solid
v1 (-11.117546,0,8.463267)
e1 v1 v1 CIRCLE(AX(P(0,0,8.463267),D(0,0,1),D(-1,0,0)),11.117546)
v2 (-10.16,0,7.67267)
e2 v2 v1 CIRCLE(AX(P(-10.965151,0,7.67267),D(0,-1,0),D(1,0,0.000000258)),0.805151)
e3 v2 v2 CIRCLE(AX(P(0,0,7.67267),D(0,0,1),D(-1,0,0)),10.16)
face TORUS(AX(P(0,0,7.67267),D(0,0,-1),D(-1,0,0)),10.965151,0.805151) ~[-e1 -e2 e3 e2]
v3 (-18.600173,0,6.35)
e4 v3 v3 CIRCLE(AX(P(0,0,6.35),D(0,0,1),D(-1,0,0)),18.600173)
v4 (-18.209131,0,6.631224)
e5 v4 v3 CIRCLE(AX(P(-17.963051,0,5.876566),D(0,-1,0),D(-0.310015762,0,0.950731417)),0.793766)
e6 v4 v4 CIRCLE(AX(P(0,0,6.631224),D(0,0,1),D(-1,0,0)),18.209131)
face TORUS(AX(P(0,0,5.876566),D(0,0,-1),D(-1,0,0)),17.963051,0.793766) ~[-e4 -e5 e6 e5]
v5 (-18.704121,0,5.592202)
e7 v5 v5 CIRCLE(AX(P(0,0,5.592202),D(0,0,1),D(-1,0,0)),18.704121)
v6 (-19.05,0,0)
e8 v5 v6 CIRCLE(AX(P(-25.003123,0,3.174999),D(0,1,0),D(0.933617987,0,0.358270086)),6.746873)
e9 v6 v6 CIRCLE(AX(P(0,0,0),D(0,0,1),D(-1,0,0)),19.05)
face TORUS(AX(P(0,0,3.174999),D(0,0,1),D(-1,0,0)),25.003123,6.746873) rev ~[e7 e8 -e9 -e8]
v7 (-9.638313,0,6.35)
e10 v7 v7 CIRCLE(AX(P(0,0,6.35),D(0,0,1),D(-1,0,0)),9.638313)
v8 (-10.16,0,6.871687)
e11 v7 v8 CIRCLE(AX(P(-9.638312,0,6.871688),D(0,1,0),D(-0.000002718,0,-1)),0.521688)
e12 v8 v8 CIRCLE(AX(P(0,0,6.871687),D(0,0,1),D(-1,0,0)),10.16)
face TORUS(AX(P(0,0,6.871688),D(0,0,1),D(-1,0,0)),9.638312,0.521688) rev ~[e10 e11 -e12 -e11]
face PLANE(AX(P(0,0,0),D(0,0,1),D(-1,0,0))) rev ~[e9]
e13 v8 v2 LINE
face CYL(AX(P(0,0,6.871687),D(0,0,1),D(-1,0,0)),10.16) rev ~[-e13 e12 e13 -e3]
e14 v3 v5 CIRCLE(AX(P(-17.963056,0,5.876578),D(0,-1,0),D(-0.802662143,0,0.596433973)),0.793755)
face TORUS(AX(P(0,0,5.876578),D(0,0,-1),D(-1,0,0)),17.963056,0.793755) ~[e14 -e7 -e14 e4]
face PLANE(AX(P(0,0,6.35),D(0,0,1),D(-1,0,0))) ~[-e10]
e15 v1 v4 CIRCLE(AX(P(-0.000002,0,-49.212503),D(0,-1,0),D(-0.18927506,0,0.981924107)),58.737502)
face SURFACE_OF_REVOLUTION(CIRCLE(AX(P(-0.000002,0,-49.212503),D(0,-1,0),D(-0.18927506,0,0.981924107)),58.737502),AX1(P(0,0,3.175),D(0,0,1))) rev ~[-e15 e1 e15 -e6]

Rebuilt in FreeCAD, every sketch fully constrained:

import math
import FreeCAD as App
import Part
import Sketcher

V = App.Vector
Q = App.Units.Quantity

doc = App.newDocument("Part")
body = doc.addObject("PartDesign::Body", "Body")

sketch1 = body.newObject("Sketcher::SketchObject", "Sketch")
sketch1.AttachmentSupport = (doc.getObject("XZ_Plane"), [""])
sketch1.MapMode = "FlatFace"
sketch1.addGeometry([
    Part.LineSegment(V(-19.05, 0, 0), V(0, 0, 0)),
    Part.LineSegment(V(0, 0, 0), V(0, 6.35, 0)),
    Part.LineSegment(V(0, 6.35, 0), V(-9.638313, 6.35, 0)),
    Part.ArcOfCircle(Part.Circle(V(-9.638312, 6.871688, 0), V(0, 0, 1), 0.521688), math.radians(-179.999844), math.radians(-90.000156)),
    Part.LineSegment(V(-10.16, 6.871687, 0), V(-10.16, 7.67267, 0)),
    Part.ArcOfCircle(Part.Circle(V(-10.965151, 7.67267, 0), V(0, 0, 1), 0.805151), math.radians(0.000015), math.radians(100.910478)),
    Part.ArcOfCircle(Part.Circle(V(-0.000002, -49.212503, 0), V(0, 0, 1), 58.737502), math.radians(100.910481), math.radians(108.059747)),
    Part.ArcOfCircle(Part.Circle(V(-17.963051, 5.876566, 0), V(0, 0, 1), 0.793766), math.radians(108.06018), math.radians(143.384607)),
    Part.ArcOfCircle(Part.Circle(V(-17.963056, 5.876578, 0), V(0, 0, 1), 0.793755), math.radians(143.385076), math.radians(200.993761)),
    Part.ArcOfCircle(Part.Circle(V(-25.003123, 3.174999, 0), V(0, 0, 1), 6.746873), math.radians(-28.072492), math.radians(20.993994)),
], False)
sketch1.addConstraint([
    Sketcher.Constraint("Coincident", 0, 2, 1, 1),
    Sketcher.Constraint("Coincident", 1, 2, 2, 1),
    Sketcher.Constraint("Coincident", 2, 2, 3, 2),
    Sketcher.Constraint("Coincident", 3, 1, 4, 1),
    Sketcher.Constraint("Tangent", 4, 2, 5, 1),
    Sketcher.Constraint("Tangent", 5, 2, 6, 1),
    Sketcher.Constraint("Coincident", 6, 2, 7, 1),
    Sketcher.Constraint("Coincident", 7, 2, 8, 1),
    Sketcher.Constraint("Coincident", 8, 2, 9, 2),
    Sketcher.Constraint("Coincident", 9, 1, 0, 1),
    Sketcher.Constraint("Horizontal", 0),
    Sketcher.Constraint("Vertical", 1),
    Sketcher.Constraint("Horizontal", 2),
    Sketcher.Constraint("Vertical", 4),
    Sketcher.Constraint("Coincident", 0, 2, -1, 1),
    Sketcher.Constraint("PointOnObject", 6, 3, -2),
    Sketcher.Constraint("Horizontal", 2, 2, 7, 2),
    Sketcher.Constraint("Vertical", 3, 3, 2, 2),
    Sketcher.Constraint("Radius", 6, Q("2.3125001 in")),
    Sketcher.Constraint("Radius", 9, Q("0.2656249 in")),
    Sketcher.Constraint("DistanceX", 0, 1, 0, 2, Q("0.75 in")),
    Sketcher.Constraint("DistanceY", 1, 1, 1, 2, Q("0.25 in")),
    Sketcher.Constraint("DistanceX", 3, 1, -1, 1, Q("0.4 in")),
    Sketcher.Constraint("DistanceY", 6, 3, -1, 1, Q("1.9375001 in")),
    Sketcher.Constraint("DistanceX", 9, 3, -1, 1, Q("0.9843749 in")),
    Sketcher.Constraint("Radius", 3, 0.521688),
    Sketcher.Constraint("Radius", 5, 0.805151),
    Sketcher.Constraint("Radius", 7, 0.793766),
    Sketcher.Constraint("Radius", 8, 0.793755),
    Sketcher.Constraint("DistanceY", -1, 1, 8, 2, 5.592202),
    Sketcher.Constraint("DistanceX", 7, 3, 5, 3, 6.9979),
    Sketcher.Constraint("DistanceY", 4, 1, 4, 2, 0.800983),
    Sketcher.Constraint("DistanceX", 6, 2, -1, 1, 18.209131),
])
revolution = body.newObject("PartDesign::Revolution", "Revolution")
revolution.Profile = sketch1
revolution.ReferenceAxis = (sketch1, ["V_Axis"])
revolution.Angle = 360

doc.recompute()
